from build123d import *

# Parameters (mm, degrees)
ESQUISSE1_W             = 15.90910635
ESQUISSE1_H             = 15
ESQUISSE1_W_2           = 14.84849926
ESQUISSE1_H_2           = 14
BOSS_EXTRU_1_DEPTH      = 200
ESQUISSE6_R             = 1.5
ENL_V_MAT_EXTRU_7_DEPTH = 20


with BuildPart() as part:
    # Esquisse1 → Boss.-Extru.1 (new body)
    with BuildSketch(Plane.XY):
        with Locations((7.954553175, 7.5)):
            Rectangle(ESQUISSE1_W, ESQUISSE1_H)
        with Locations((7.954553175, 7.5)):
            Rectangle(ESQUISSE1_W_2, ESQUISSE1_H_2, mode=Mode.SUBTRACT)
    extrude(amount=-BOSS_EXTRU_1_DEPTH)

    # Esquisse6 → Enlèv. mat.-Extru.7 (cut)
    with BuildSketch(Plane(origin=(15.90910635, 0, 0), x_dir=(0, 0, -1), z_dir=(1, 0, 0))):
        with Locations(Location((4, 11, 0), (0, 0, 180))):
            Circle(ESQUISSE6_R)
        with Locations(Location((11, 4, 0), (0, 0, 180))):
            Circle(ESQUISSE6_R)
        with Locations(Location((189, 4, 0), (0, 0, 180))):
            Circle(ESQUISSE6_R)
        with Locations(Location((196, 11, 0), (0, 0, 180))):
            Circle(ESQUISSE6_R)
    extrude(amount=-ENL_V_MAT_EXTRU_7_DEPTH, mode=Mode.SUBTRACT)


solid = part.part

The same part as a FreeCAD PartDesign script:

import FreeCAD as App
import Part
import Sketcher
Q = App.Units.Quantity

doc = App.newDocument("Part")
params = doc.addObject("Spreadsheet::Sheet", "Params")
for row, (alias, value) in enumerate([
    ("sketch1_height", "15 mm"),
    ("sketch1_height2", "14 mm"),
    ("pad1_length", "200 mm"),
    ("sketch2_diameter", "3 mm"),
    ("pocket1_length", "20 mm"),
], start=1):
    params.set(f"A{row}", alias)
    params.set(f"B{row}", "=" + value)
    params.setAlias(f"B{row}", alias)

body = doc.addObject("PartDesign::Body", "Body")

# Sketch on XY plane
sketch1 = body.newObject("Sketcher::SketchObject", "Sketch")
sketch1.AttachmentSupport = (doc.getObject("XY_Plane"), [""])
sketch1.MapMode = "FlatFace"
sketch1.addGeometry(Part.LineSegment(App.Vector(0, 15, 0), App.Vector(0, 0, 0)), False)
sketch1.addGeometry(Part.LineSegment(App.Vector(0, 0, 0), App.Vector(16, 0, 0)), False)
sketch1.addGeometry(Part.LineSegment(App.Vector(16, 0, 0), App.Vector(16, 15, 0)), False)
sketch1.addGeometry(Part.LineSegment(App.Vector(16, 15, 0), App.Vector(0, 15, 0)), False)
sketch1.addGeometry(Part.LineSegment(App.Vector(15, 0, 0), App.Vector(1, 0, 0)), False)
sketch1.addGeometry(Part.LineSegment(App.Vector(1, 0, 0), App.Vector(1, 14, 0)), False)
sketch1.addGeometry(Part.LineSegment(App.Vector(1, 14, 0), App.Vector(15, 14, 0)), False)
sketch1.addGeometry(Part.LineSegment(App.Vector(15, 14, 0), App.Vector(15, 0, 0)), False)
sketch1.addConstraint(Sketcher.Constraint("Coincident", 0, 2, 1, 1))
sketch1.addConstraint(Sketcher.Constraint("Coincident", 1, 2, 2, 1))
sketch1.addConstraint(Sketcher.Constraint("Coincident", 2, 2, 3, 1))
sketch1.addConstraint(Sketcher.Constraint("Coincident", 3, 2, 0, 1))
sketch1.addConstraint(Sketcher.Constraint("Coincident", 4, 2, 5, 1))
sketch1.addConstraint(Sketcher.Constraint("Coincident", 5, 2, 6, 1))
sketch1.addConstraint(Sketcher.Constraint("Coincident", 6, 2, 7, 1))
sketch1.addConstraint(Sketcher.Constraint("Coincident", 7, 2, 4, 1))
sketch1.addConstraint(Sketcher.Constraint("Vertical", 0))
sketch1.addConstraint(Sketcher.Constraint("Horizontal", 1))
sketch1.addConstraint(Sketcher.Constraint("Vertical", 2))
sketch1.addConstraint(Sketcher.Constraint("Horizontal", 3))
sketch1.addConstraint(Sketcher.Constraint("Horizontal", 4))
sketch1.addConstraint(Sketcher.Constraint("Vertical", 5))
sketch1.addConstraint(Sketcher.Constraint("Horizontal", 6))
sketch1.addConstraint(Sketcher.Constraint("Vertical", 7))
sketch1.addConstraint(Sketcher.Constraint("Coincident", 0, 2, -1, 1))
sketch1.addConstraint(Sketcher.Constraint("DistanceY", 0, 2, 0, 1, Q("15 mm")))
sketch1.addConstraint(Sketcher.Constraint("DistanceY", 5, 1, 5, 2, Q("14 mm")))
sketch1.addConstraint(Sketcher.Constraint("DistanceY", -1, 1, 4, 2, Q("0.5 mm")))
sketch1.addConstraint(Sketcher.Constraint("DistanceX", 4, 2, 4, 1, Q("14.848499 mm")))
sketch1.addConstraint(Sketcher.Constraint("DistanceX", 1, 1, 1, 2, Q("15.909106 mm")))
sketch1.addConstraint(Sketcher.Constraint("DistanceX", -1, 1, 4, 2, Q("0.530304 mm")))
sketch1.setExpression("Constraints[17]", "Params.sketch1_height")
sketch1.setExpression("Constraints[18]", "Params.sketch1_height2")
pad1 = body.newObject("PartDesign::Pad", "Pad")
pad1.Profile = sketch1
pad1.setExpression("Length", "Params.pad1_length")
pad1.Reversed = True

# Sketch on YZ plane
sketch2 = body.newObject("Sketcher::SketchObject", "Sketch001")
sketch2.AttachmentSupport = (doc.getObject("YZ_Plane"), [""])
sketch2.MapMode = "FlatFace"
sketch2.AttachmentOffset = App.Placement(App.Vector(0, 0, 15.909106), App.Rotation())
sketch2.addGeometry(Part.Circle(App.Vector(11, -4, 0), App.Vector(0, 0, 1), 1.5), False)
sketch2.addGeometry(Part.Circle(App.Vector(4, -11, 0), App.Vector(0, 0, 1), 1.5), False)
sketch2.addGeometry(Part.Circle(App.Vector(4, -189, 0), App.Vector(0, 0, 1), 1.5), False)
sketch2.addGeometry(Part.Circle(App.Vector(11, -196, 0), App.Vector(0, 0, 1), 1.5), False)
sketch2.addConstraint(Sketcher.Constraint("Equal", 0, 1))
sketch2.addConstraint(Sketcher.Constraint("Equal", 1, 2))
sketch2.addConstraint(Sketcher.Constraint("Equal", 2, 3))
sketch2.addConstraint(Sketcher.Constraint("Vertical", 1, 3, 2, 3))
sketch2.addConstraint(Sketcher.Constraint("Vertical", 0, 3, 3, 3))
sketch2.addConstraint(Sketcher.Constraint("Diameter", 0, Q("3 mm")))
sketch2.addConstraint(Sketcher.Constraint("DistanceX", -1, 1, 0, 3, Q("11 mm")))
sketch2.addConstraint(Sketcher.Constraint("DistanceY", 0, 3, -1, 1, Q("4 mm")))
sketch2.addConstraint(Sketcher.Constraint("DistanceX", -1, 1, 1, 3, Q("4 mm")))
sketch2.addConstraint(Sketcher.Constraint("DistanceY", 1, 3, -1, 1, Q("11 mm")))
sketch2.addConstraint(Sketcher.Constraint("DistanceY", 2, 3, -1, 1, Q("189 mm")))
sketch2.addConstraint(Sketcher.Constraint("DistanceY", 3, 3, -1, 1, Q("196 mm")))
sketch2.setExpression("Constraints[5]", "Params.sketch2_diameter")
pocket1 = body.newObject("PartDesign::Pocket", "Pocket")
pocket1.Profile = sketch2
pocket1.setExpression("Length", "Params.pocket1_length")

doc.recompute()
